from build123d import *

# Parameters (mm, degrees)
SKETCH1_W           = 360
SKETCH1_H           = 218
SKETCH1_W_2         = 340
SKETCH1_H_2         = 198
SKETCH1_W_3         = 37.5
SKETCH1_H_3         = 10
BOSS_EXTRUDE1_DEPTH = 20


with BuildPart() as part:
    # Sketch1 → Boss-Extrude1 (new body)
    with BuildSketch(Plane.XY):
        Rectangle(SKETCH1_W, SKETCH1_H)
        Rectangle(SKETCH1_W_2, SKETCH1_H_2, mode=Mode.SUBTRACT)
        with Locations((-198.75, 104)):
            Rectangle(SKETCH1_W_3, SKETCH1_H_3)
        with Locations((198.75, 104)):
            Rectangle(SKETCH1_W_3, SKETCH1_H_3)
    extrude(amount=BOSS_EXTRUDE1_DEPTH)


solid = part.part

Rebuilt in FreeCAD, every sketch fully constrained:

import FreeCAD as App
import Part
import Sketcher

V = App.Vector
Q = App.Units.Quantity


def add_polygon(sketch, points):
    """Adds a closed chain of lines whose ends are joined by coincident constraints."""
    first, n = sketch.GeometryCount, len(points)
    for a, b in zip(points, points[1:] + points[:1]):
        sketch.addGeometry(Part.LineSegment(App.Vector(*a, 0), App.Vector(*b, 0)), False)
    for i in range(n):
        sketch.addConstraint(Sketcher.Constraint("Coincident", first + i, 2, first + (i + 1) % n, 1))

doc = App.newDocument("Part")
params = doc.addObject("Spreadsheet::Sheet", "Params")
for row, (alias, value) in enumerate([
    ("sketch1_width", "360 mm"),
    ("sketch1_width2", "435 mm"),
    ("sketch1_width3", "340 mm"),
    ("sketch1_height", "208 mm"),
    ("sketch1_height2", "10 mm"),
    ("pad1_length", "20 mm"),
], start=1):
    params.set(f"A{row}", alias)
    params.set(f"B{row}", "=" + value)
    params.setAlias(f"B{row}", alias)

body = doc.addObject("PartDesign::Body", "Body")

# Sketch on XY plane
sketch1 = doc.addObject("Sketcher::SketchObject", "Sketch")
body.addObject(sketch1)
sketch1.AttachmentSupport = (doc.XY_Plane, [""])
sketch1.MapMode = "FlatFace"
add_polygon(sketch1, [(-180, 99), (-180, -109), (180, -109), (180, 99), (218, 99), (218, 109), (-218, 109), (-218, 99)])  # lines 0-7
add_polygon(sketch1, [(170, -99), (-170, -99), (-170, 99), (170, 99)])  # lines 8-11
sketch1.addConstraint(Sketcher.Constraint("Vertical", 0))
sketch1.addConstraint(Sketcher.Constraint("Horizontal", 1))
sketch1.addConstraint(Sketcher.Constraint("Vertical", 2))
sketch1.addConstraint(Sketcher.Constraint("Horizontal", 3))
sketch1.addConstraint(Sketcher.Constraint("Vertical", 4))
sketch1.addConstraint(Sketcher.Constraint("Horizontal", 5))
sketch1.addConstraint(Sketcher.Constraint("Vertical", 6))
sketch1.addConstraint(Sketcher.Constraint("Horizontal", 7))
sketch1.addConstraint(Sketcher.Constraint("Horizontal", 8))
sketch1.addConstraint(Sketcher.Constraint("Vertical", 9))
sketch1.addConstraint(Sketcher.Constraint("Horizontal", 10))
sketch1.addConstraint(Sketcher.Constraint("Vertical", 11))
sketch1.addConstraint(Sketcher.Constraint("Symmetric", 8, 2, 10, 2, -1, 1))
sketch1.addConstraint(Sketcher.Constraint("Symmetric", 3, 2, 6, 2, -2))
sketch1.addConstraint(Sketcher.Constraint("Horizontal", 7, 2, 9, 2))
sketch1.addConstraint(Sketcher.Constraint("Equal", 3, 7))
sketch1.addConstraint(Sketcher.Constraint("DistanceX", 1, 1, 1, 2, Q("360 mm")))
sketch1.addConstraint(Sketcher.Constraint("DistanceX", 5, 2, 5, 1, Q("435 mm")))
sketch1.addConstraint(Sketcher.Constraint("DistanceX", 8, 2, 8, 1, Q("340 mm")))
sketch1.addConstraint(Sketcher.Constraint("DistanceY", 0, 2, 0, 1, Q("208 mm")))
sketch1.addConstraint(Sketcher.Constraint("DistanceY", 4, 1, 4, 2, Q("10 mm")))
sketch1.addConstraint(Sketcher.Constraint("DistanceY", 9, 1, 9, 2, Q("198 mm")))
sketch1.setExpression("Constraints[28]", "Params.sketch1_width")
sketch1.setExpression("Constraints[29]", "Params.sketch1_width2")
sketch1.setExpression("Constraints[30]", "Params.sketch1_width3")
sketch1.setExpression("Constraints[31]", "Params.sketch1_height")
sketch1.setExpression("Constraints[32]", "Params.sketch1_height2")
pad1 = doc.addObject("PartDesign::Pad", "Pad")
body.addObject(pad1)
pad1.Profile = sketch1
pad1.setExpression("Length", "Params.pad1_length")

doc.recompute()
